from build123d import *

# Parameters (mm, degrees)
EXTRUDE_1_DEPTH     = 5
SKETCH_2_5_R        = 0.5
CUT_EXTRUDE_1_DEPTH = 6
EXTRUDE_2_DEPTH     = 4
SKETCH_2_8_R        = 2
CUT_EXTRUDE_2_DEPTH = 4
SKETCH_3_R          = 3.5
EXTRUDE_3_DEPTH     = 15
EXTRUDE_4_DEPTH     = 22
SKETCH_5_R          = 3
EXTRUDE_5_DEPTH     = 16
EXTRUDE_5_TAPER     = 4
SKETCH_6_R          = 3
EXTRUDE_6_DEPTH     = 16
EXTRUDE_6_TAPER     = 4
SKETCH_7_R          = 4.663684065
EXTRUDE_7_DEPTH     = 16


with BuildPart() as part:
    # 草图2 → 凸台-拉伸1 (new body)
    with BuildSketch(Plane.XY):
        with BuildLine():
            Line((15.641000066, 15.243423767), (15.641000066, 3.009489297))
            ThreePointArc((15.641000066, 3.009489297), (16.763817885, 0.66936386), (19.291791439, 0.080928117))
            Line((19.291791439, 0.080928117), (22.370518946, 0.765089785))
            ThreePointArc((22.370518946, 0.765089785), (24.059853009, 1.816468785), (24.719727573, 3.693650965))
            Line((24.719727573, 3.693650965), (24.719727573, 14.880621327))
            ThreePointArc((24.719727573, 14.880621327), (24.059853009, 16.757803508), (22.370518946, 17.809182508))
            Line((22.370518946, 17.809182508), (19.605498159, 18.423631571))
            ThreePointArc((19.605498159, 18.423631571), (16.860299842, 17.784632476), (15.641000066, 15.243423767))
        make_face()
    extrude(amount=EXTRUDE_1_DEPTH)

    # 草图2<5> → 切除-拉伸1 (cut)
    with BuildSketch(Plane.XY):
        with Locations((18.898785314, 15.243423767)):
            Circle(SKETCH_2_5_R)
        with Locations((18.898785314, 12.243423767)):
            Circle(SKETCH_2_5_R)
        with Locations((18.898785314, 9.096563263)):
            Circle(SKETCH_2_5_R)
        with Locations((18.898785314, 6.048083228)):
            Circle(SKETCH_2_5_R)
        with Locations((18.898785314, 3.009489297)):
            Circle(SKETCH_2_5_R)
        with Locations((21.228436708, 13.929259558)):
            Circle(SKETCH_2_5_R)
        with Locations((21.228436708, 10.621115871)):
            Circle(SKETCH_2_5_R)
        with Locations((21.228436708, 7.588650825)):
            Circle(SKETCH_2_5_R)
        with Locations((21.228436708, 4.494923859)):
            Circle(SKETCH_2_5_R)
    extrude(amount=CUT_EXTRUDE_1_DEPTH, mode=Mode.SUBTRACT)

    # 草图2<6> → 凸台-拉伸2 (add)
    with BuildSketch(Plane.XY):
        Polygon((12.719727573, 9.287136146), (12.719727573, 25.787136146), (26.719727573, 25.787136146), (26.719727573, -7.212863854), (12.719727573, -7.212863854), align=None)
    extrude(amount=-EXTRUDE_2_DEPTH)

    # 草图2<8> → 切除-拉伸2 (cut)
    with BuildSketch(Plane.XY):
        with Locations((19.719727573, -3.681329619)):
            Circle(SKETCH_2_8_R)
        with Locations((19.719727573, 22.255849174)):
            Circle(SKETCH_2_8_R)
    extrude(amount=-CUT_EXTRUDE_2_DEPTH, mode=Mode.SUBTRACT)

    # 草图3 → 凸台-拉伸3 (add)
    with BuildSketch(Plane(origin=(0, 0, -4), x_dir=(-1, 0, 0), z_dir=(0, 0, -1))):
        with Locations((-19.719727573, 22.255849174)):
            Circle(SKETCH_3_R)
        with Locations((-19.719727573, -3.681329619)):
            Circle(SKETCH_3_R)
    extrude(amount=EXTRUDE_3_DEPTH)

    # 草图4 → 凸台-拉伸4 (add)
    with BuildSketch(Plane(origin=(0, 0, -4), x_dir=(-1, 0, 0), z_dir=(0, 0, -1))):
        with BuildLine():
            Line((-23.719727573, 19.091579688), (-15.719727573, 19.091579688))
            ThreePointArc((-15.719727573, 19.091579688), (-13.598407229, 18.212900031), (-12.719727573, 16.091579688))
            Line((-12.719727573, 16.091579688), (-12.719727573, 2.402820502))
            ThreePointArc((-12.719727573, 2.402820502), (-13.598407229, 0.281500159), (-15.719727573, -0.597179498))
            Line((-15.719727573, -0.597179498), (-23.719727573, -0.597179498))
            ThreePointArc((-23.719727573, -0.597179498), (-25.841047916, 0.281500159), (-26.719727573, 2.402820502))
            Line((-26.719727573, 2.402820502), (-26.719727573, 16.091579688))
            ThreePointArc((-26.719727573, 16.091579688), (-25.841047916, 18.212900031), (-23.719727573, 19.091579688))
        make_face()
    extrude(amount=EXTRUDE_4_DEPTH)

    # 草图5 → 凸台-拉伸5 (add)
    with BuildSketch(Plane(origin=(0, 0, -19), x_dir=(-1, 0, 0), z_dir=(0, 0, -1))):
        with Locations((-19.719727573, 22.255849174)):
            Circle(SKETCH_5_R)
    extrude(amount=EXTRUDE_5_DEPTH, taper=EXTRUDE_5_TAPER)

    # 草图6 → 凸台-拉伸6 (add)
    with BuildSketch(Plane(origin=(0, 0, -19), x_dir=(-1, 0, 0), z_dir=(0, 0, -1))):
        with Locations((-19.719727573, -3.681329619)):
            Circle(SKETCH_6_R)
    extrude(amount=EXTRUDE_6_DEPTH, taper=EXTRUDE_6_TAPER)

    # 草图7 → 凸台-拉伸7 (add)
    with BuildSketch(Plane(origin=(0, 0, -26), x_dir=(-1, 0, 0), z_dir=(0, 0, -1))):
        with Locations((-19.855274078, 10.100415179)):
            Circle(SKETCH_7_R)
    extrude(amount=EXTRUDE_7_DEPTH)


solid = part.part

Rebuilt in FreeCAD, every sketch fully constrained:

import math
import FreeCAD as App
import Part
import Sketcher
from FreeCAD import Vector
Q = App.Units.Quantity


def add_polygon(sketch, points):
    """Adds a closed chain of lines whose ends are joined by coincident constraints."""
    first, n = sketch.GeometryCount, len(points)
    for a, b in zip(points, points[1:] + points[:1]):
        sketch.addGeometry(Part.LineSegment(App.Vector(*a, 0), App.Vector(*b, 0)), False)
    for i in range(n):
        sketch.addConstraint(Sketcher.Constraint("Coincident", first + i, 2, first + (i + 1) % n, 1))

doc = App.newDocument("Part")
body = doc.addObject("PartDesign::Body", "Body")

sketch1 = body.newObject("Sketcher::SketchObject", "Sketch")
sketch1.AttachmentSupport = (doc.getObject("XY_Plane"), [""])
sketch1.MapMode = "FlatFace"
sketch1.addGeometry([
    Part.LineSegment(Vector(15.641, 15.243424, 0), Vector(15.641, 3.009489, 0)),
    Part.ArcOfCircle(Part.Circle(Vector(18.641, 3.009489, 0), Vector(0, 0, 1), 3), math.radians(180), math.radians(282.528808)),
    Part.LineSegment(Vector(19.291791, 0.080928, 0), Vector(22.370519, 0.76509, 0)),
    Part.ArcOfCircle(Part.Circle(Vector(21.719728, 3.693651, 0), Vector(0, 0, 1), 3), math.radians(-77.471192), math.radians(0)),
    Part.LineSegment(Vector(24.719728, 3.693651, 0), Vector(24.719728, 14.880621, 0)),
    Part.ArcOfCircle(Part.Circle(Vector(21.719728, 14.880621, 0), Vector(0, 0, 1), 3), math.radians(0), math.radians(77.471192)),
    Part.LineSegment(Vector(22.370519, 17.809183, 0), Vector(19.605498, 18.423632, 0)),
    Part.ArcOfCircle(Part.Circle(Vector(18.898785, 15.243424, 0), Vector(0, 0, 1), 3.257785), math.radians(77.471192), math.radians(180)),
], False)
sketch1.addConstraint([
    Sketcher.Constraint("Tangent", 0, 2, 1, 1),
    Sketcher.Constraint("Tangent", 1, 2, 2, 1),
    Sketcher.Constraint("Tangent", 2, 2, 3, 1),
    Sketcher.Constraint("Tangent", 3, 2, 4, 1),
    Sketcher.Constraint("Tangent", 4, 2, 5, 1),
    Sketcher.Constraint("Tangent", 5, 2, 6, 1),
    Sketcher.Constraint("Tangent", 6, 2, 7, 1),
    Sketcher.Constraint("Tangent", 7, 2, 0, 1),
    Sketcher.Constraint("Vertical", 0),
    Sketcher.Constraint("Vertical", 4),
    Sketcher.Constraint("Equal", 1, 3),
    Sketcher.Constraint("Equal", 3, 5),
    Sketcher.Constraint("Vertical", 2, 2, 5, 2),
    Sketcher.Constraint("Radius", 1, Q("3 mm")),
    Sketcher.Constraint("DistanceX", -1, 1, 1, 3, Q("18.641 mm")),
    Sketcher.Constraint("Radius", 7, Q("3.257785 mm")),
    Sketcher.Constraint("DistanceY", 4, 1, 4, 2, Q("11.18697 mm")),
    Sketcher.Constraint("DistanceX", -1, 1, 6, 2, Q("19.605498 mm")),
    Sketcher.Constraint("DistanceY", 2, 2, 1, 3, Q("2.2444 mm")),
    Sketcher.Constraint("DistanceY", -1, 1, 1, 3, Q("3.009489 mm")),
])
pad1 = body.newObject("PartDesign::Pad", "Pad")
pad1.Profile = sketch1
pad1.Length = 5

sketch2 = body.newObject("Sketcher::SketchObject", "Sketch001")
sketch2.AttachmentSupport = (doc.getObject("XY_Plane"), [""])
sketch2.MapMode = "FlatFace"
sketch2.addGeometry([
    Part.Circle(Vector(18.898785, 15.243424, 0), Vector(0, 0, 1), 0.5),
    Part.Circle(Vector(18.898785, 12.243424, 0), Vector(0, 0, 1), 0.5),
    Part.Circle(Vector(18.898785, 9.096563, 0), Vector(0, 0, 1), 0.5),
    Part.Circle(Vector(18.898785, 6.048083, 0), Vector(0, 0, 1), 0.5),
    Part.Circle(Vector(18.898785, 3.009489, 0), Vector(0, 0, 1), 0.5),
    Part.Circle(Vector(21.228437, 13.92926, 0), Vector(0, 0, 1), 0.5),
    Part.Circle(Vector(21.228437, 10.621116, 0), Vector(0, 0, 1), 0.5),
    Part.Circle(Vector(21.228437, 7.588651, 0), Vector(0, 0, 1), 0.5),
    Part.Circle(Vector(21.228437, 4.494924, 0), Vector(0, 0, 1), 0.5),
], False)
sketch2.addConstraint([
    Sketcher.Constraint("Equal", 0, 1),
    Sketcher.Constraint("Equal", 1, 2),
    Sketcher.Constraint("Equal", 2, 3),
    Sketcher.Constraint("Equal", 3, 4),
    Sketcher.Constraint("Equal", 4, 5),
    Sketcher.Constraint("Equal", 5, 6),
    Sketcher.Constraint("Equal", 6, 7),
    Sketcher.Constraint("Equal", 7, 8),
    Sketcher.Constraint("Vertical", 0, 3, 1, 3),
    Sketcher.Constraint("Vertical", 1, 3, 2, 3),
    Sketcher.Constraint("Vertical", 2, 3, 3, 3),
    Sketcher.Constraint("Vertical", 3, 3, 4, 3),
    Sketcher.Constraint("Vertical", 5, 3, 6, 3),
    Sketcher.Constraint("Vertical", 6, 3, 7, 3),
    Sketcher.Constraint("Vertical", 7, 3, 8, 3),
    Sketcher.Constraint("Diameter", 0, Q("1 mm")),
    Sketcher.Constraint("DistanceY", 1, 3, 0, 3, Q("3 mm")),
    Sketcher.Constraint("DistanceY", -1, 1, 4, 3, Q("3.009489 mm")),
    Sketcher.Constraint("DistanceY", -1, 1, 5, 3, Q("13.92926 mm")),
    Sketcher.Constraint("DistanceY", -1, 1, 7, 3, Q("7.588651 mm")),
    Sketcher.Constraint("DistanceY", 2, 3, 1, 3, Q("3.146861 mm")),
    Sketcher.Constraint("DistanceY", 3, 3, 2, 3, Q("3.04848 mm")),
    Sketcher.Constraint("DistanceX", 0, 3, 5, 3, Q("2.329651 mm")),
    Sketcher.Constraint("DistanceY", 8, 3, 3, 3, Q("1.553159 mm")),
    Sketcher.Constraint("DistanceX", -1, 1, 0, 3, Q("18.898785 mm")),
    Sketcher.Constraint("DistanceY", -1, 1, 0, 3, Q("15.243424 mm")),
    Sketcher.Constraint("DistanceY", -1, 1, 6, 3, Q("10.621116 mm")),
])
pocket1 = body.newObject("PartDesign::Pocket", "Pocket")
pocket1.Profile = sketch2
pocket1.Length = 6
pocket1.Reversed = True

sketch3 = body.newObject("Sketcher::SketchObject", "Sketch002")
sketch3.AttachmentSupport = (doc.getObject("XY_Plane"), [""])
sketch3.MapMode = "FlatFace"
add_polygon(sketch3, [(12.719728, 25.787136), (12.719728, -7.212864), (26.719728, -7.212864), (26.719728, 25.787136)])
sketch3.addConstraint([
    Sketcher.Constraint("Vertical", 0),
    Sketcher.Constraint("Horizontal", 1),
    Sketcher.Constraint("Vertical", 2),
    Sketcher.Constraint("Horizontal", 3),
    Sketcher.Constraint("DistanceX", 1, 1, 1, 2, Q("14 mm")),
    Sketcher.Constraint("DistanceY", 0, 2, 0, 1, Q("33 mm")),
    Sketcher.Constraint("DistanceX", -1, 1, 0, 2, Q("12.719728 mm")),
    Sketcher.Constraint("DistanceY", 0, 2, -1, 1, Q("7.212864 mm")),
])
pad2 = body.newObject("PartDesign::Pad", "Pad001")
pad2.Profile = sketch3
pad2.Length = 4
pad2.Reversed = True

sketch4 = body.newObject("Sketcher::SketchObject", "Sketch003")
sketch4.AttachmentSupport = (doc.getObject("XY_Plane"), [""])
sketch4.MapMode = "FlatFace"
sketch4.addGeometry([
    Part.Circle(Vector(19.719728, -3.68133, 0), Vector(0, 0, 1), 2),
    Part.Circle(Vector(19.719728, 22.255849, 0), Vector(0, 0, 1), 2),
], False)
sketch4.addConstraint([
    Sketcher.Constraint("Equal", 0, 1),
    Sketcher.Constraint("Vertical", 0, 3, 1, 3),
    Sketcher.Constraint("Diameter", 0, Q("4 mm")),
    Sketcher.Constraint("DistanceY", 0, 3, -1, 1, Q("3.68133 mm")),
    Sketcher.Constraint("DistanceY", -1, 1, 1, 3, Q("22.255849 mm")),
    Sketcher.Constraint("DistanceX", -1, 1, 0, 3, Q("19.719728 mm")),
])
pocket2 = body.newObject("PartDesign::Pocket", "Pocket001")
pocket2.Profile = sketch4
pocket2.Length = 4

sketch5 = body.newObject("Sketcher::SketchObject", "Sketch004")
sketch5.AttachmentSupport = (doc.getObject("XY_Plane"), [""])
sketch5.MapMode = "FlatFace"
sketch5.AttachmentOffset = App.Placement(Vector(0, 0, -4), App.Rotation())
sketch5.addGeometry([
    Part.Circle(Vector(19.719728, 22.255849, 0), Vector(0, 0, 1), 3.5),
    Part.Circle(Vector(19.719728, -3.68133, 0), Vector(0, 0, 1), 3.5),
], False)
sketch5.addConstraint([
    Sketcher.Constraint("Equal", 0, 1),
    Sketcher.Constraint("Vertical", 0, 3, 1, 3),
    Sketcher.Constraint("Diameter", 0, Q("7 mm")),
    Sketcher.Constraint("DistanceY", -1, 1, 0, 3, Q("22.255849 mm")),
    Sketcher.Constraint("DistanceY", 1, 3, -1, 1, Q("3.68133 mm")),
    Sketcher.Constraint("DistanceX", -1, 1, 0, 3, Q("19.719728 mm")),
])
pad3 = body.newObject("PartDesign::Pad", "Pad002")
pad3.Profile = sketch5
pad3.Length = 15
pad3.Reversed = True

sketch6 = body.newObject("Sketcher::SketchObject", "Sketch005")
sketch6.AttachmentSupport = (doc.getObject("XY_Plane"), [""])
sketch6.MapMode = "FlatFace"
sketch6.AttachmentOffset = App.Placement(Vector(0, 0, -4), App.Rotation())
sketch6.addGeometry([
    Part.LineSegment(Vector(15.719728, 19.09158, 0), Vector(23.719728, 19.09158, 0)),
    Part.ArcOfCircle(Part.Circle(Vector(23.719728, 16.09158, 0), Vector(0, 0, 1), 3), math.radians(0), math.radians(90)),
    Part.LineSegment(Vector(26.719728, 16.09158, 0), Vector(26.719728, 2.402821, 0)),
    Part.ArcOfCircle(Part.Circle(Vector(23.719728, 2.402821, 0), Vector(0, 0, 1), 3), math.radians(-90), math.radians(0)),
    Part.LineSegment(Vector(23.719728, -0.597179, 0), Vector(15.719728, -0.597179, 0)),
    Part.ArcOfCircle(Part.Circle(Vector(15.719728, 2.402821, 0), Vector(0, 0, 1), 3), math.radians(180), math.radians(270)),
    Part.LineSegment(Vector(12.719728, 2.402821, 0), Vector(12.719728, 16.09158, 0)),
    Part.ArcOfCircle(Part.Circle(Vector(15.719728, 16.09158, 0), Vector(0, 0, 1), 3), math.radians(90), math.radians(180)),
], False)
sketch6.addConstraint([
    Sketcher.Constraint("Tangent", 0, 2, 1, 2),
    Sketcher.Constraint("Tangent", 1, 1, 2, 1),
    Sketcher.Constraint("Tangent", 2, 2, 3, 2),
    Sketcher.Constraint("Tangent", 3, 1, 4, 1),
    Sketcher.Constraint("Tangent", 4, 2, 5, 2),
    Sketcher.Constraint("Tangent", 5, 1, 6, 1),
    Sketcher.Constraint("Tangent", 6, 2, 7, 2),
    Sketcher.Constraint("Tangent", 7, 1, 0, 1),
    Sketcher.Constraint("Horizontal", 0),
    Sketcher.Constraint("Vertical", 2),
    Sketcher.Constraint("Horizontal", 4),
    Sketcher.Constraint("Vertical", 6),
    Sketcher.Constraint("Equal", 1, 3),
    Sketcher.Constraint("Equal", 3, 5),
    Sketcher.Constraint("Equal", 5, 7),
    Sketcher.Constraint("Radius", 1, Q("3 mm")),
    Sketcher.Constraint("DistanceX", 0, 1, 0, 2, Q("8 mm")),
    Sketcher.Constraint("DistanceY", 2, 2, 2, 1, Q("13.688759 mm")),
    Sketcher.Constraint("DistanceY", -1, 1, 1, 3, Q("16.09158 mm")),
    Sketcher.Constraint("DistanceX", -1, 1, 1, 3, Q("23.719728 mm")),
])
pad4 = body.newObject("PartDesign::Pad", "Pad003")
pad4.Profile = sketch6
pad4.Length = 22
pad4.Reversed = True

sketch7 = body.newObject("Sketcher::SketchObject", "Sketch006")
sketch7.AttachmentSupport = (doc.getObject("XY_Plane"), [""])
sketch7.MapMode = "FlatFace"
sketch7.AttachmentOffset = App.Placement(Vector(0, 0, -19), App.Rotation())
sketch7.addGeometry(Part.Circle(Vector(19.719728, 22.255849, 0), Vector(0, 0, 1), 3), False)
sketch7.addConstraint([
    Sketcher.Constraint("Diameter", 0, Q("6 mm")),
    Sketcher.Constraint("DistanceY", -1, 1, 0, 3, Q("22.255849 mm")),
    Sketcher.Constraint("DistanceX", -1, 1, 0, 3, Q("19.719728 mm")),
])
pad5 = body.newObject("PartDesign::Pad", "Pad004")
pad5.Profile = sketch7
pad5.Length = 16
pad5.Reversed = True
pad5.TaperAngle = -4

sketch8 = body.newObject("Sketcher::SketchObject", "Sketch007")
sketch8.AttachmentSupport = (doc.getObject("XY_Plane"), [""])
sketch8.MapMode = "FlatFace"
sketch8.AttachmentOffset = App.Placement(Vector(0, 0, -19), App.Rotation())
sketch8.addGeometry(Part.Circle(Vector(19.719728, -3.68133, 0), Vector(0, 0, 1), 3), False)
sketch8.addConstraint([
    Sketcher.Constraint("Diameter", 0, Q("6 mm")),
    Sketcher.Constraint("DistanceY", 0, 3, -1, 1, Q("3.68133 mm")),
    Sketcher.Constraint("DistanceX", -1, 1, 0, 3, Q("19.719728 mm")),
])
pad6 = body.newObject("PartDesign::Pad", "Pad005")
pad6.Profile = sketch8
pad6.Length = 16
pad6.Reversed = True
pad6.TaperAngle = -4

sketch9 = body.newObject("Sketcher::SketchObject", "Sketch008")
sketch9.AttachmentSupport = (doc.getObject("XY_Plane"), [""])
sketch9.MapMode = "FlatFace"
sketch9.AttachmentOffset = App.Placement(Vector(0, 0, -26), App.Rotation())
sketch9.addGeometry(Part.Circle(Vector(19.855274, 10.100415, 0), Vector(0, 0, 1), 4.663684), False)
sketch9.addConstraint([
    Sketcher.Constraint("Diameter", 0, Q("9.327368 mm")),
    Sketcher.Constraint("DistanceX", -1, 1, 0, 3, Q("19.855274 mm")),
    Sketcher.Constraint("DistanceY", -1, 1, 0, 3, Q("10.100415 mm")),
])
pad7 = body.newObject("PartDesign::Pad", "Pad006")
pad7.Profile = sketch9
pad7.Length = 16
pad7.Reversed = True

doc.recompute()
